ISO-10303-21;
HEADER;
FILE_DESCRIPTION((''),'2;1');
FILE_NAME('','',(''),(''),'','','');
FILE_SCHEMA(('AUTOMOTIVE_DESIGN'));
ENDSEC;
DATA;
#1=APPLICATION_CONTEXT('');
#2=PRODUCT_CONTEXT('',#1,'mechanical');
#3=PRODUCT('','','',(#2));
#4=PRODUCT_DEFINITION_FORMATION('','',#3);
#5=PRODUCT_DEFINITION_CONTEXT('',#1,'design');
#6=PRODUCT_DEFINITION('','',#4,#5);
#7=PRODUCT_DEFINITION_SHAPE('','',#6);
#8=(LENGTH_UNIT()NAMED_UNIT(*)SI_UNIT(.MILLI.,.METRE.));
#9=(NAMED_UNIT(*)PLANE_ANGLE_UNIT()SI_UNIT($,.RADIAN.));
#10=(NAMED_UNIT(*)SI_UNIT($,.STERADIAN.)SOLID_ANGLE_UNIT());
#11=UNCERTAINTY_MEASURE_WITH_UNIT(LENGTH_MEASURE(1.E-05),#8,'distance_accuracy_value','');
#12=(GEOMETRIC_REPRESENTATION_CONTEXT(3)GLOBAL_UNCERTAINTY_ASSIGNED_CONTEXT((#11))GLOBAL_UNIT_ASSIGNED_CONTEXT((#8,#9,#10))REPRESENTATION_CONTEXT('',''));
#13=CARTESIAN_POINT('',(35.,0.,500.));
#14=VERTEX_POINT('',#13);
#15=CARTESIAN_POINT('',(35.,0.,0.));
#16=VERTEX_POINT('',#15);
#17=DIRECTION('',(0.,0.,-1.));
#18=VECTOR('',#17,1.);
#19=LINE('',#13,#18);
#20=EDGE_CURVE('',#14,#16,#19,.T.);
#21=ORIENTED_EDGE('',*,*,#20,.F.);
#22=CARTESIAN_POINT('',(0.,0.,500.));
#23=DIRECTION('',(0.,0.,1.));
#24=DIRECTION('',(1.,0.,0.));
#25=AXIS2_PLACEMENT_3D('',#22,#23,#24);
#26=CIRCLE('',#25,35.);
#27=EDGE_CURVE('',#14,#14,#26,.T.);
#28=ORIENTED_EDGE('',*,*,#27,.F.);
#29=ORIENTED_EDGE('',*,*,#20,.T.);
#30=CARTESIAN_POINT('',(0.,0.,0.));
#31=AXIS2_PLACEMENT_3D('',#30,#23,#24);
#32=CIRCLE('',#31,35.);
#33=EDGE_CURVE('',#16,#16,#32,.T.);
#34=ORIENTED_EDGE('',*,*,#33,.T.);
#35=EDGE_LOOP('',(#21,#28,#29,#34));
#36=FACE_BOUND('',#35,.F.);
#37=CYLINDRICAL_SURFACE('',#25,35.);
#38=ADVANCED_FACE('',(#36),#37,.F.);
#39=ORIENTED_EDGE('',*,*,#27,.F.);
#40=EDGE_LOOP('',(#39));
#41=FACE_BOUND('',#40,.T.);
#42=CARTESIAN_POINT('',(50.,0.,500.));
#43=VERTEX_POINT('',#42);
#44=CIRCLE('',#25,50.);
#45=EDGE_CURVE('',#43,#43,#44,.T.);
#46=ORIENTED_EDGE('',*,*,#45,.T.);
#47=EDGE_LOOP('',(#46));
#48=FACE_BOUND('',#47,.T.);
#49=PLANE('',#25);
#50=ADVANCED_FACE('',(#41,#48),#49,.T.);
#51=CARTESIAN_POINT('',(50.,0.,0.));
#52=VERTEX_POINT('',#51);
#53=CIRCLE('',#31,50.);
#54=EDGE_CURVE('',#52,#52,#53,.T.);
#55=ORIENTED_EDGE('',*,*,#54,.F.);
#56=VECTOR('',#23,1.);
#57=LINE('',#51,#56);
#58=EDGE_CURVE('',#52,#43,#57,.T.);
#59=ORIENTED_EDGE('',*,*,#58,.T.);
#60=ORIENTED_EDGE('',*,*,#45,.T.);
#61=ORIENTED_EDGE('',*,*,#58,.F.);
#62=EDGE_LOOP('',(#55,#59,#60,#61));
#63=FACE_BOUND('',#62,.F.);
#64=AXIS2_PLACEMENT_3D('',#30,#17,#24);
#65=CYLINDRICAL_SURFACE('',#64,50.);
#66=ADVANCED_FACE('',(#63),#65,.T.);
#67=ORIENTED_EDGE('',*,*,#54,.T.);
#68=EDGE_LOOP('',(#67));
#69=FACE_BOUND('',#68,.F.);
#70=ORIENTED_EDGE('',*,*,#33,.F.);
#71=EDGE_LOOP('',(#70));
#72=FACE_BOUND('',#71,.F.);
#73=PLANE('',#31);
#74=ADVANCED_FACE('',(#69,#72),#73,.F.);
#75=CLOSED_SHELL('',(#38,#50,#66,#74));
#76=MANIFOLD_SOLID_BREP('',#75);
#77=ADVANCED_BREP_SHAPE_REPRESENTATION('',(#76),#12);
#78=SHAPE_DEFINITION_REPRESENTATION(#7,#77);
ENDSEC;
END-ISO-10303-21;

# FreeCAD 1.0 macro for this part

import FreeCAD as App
import Part
import Sketcher
from FreeCAD import Vector

doc = App.newDocument("Part")
body = doc.addObject("PartDesign::Body", "Body")

# Sketch on XY plane
sketch1 = body.newObject("Sketcher::SketchObject", "Sketch")
sketch1.AttachmentSupport = (doc.getObject("XY_Plane"), [""])
sketch1.MapMode = "FlatFace"
sketch1.addGeometry(Part.Circle(Vector(0, 0, 0), Vector(0, 0, 1), 50), False)
sketch1.addConstraint(Sketcher.Constraint("Coincident", 0, 3, -1, 1))
sketch1.addConstraint(Sketcher.Constraint("Diameter", 0, 100.0))
pad1 = body.newObject("PartDesign::Pad", "Pad")
pad1.Profile = sketch1
pad1.Length = 500

# Sketch on XY plane
sketch2 = body.newObject("Sketcher::SketchObject", "Sketch001")
sketch2.AttachmentSupport = (doc.getObject("XY_Plane"), [""])
sketch2.MapMode = "FlatFace"
sketch2.AttachmentOffset = App.Placement(Vector(0, 0, 500), App.Rotation())
sketch2.addGeometry(Part.Circle(Vector(0, 0, 0), Vector(0, 0, 1), 35), False)
sketch2.addConstraint(Sketcher.Constraint("Coincident", 0, 3, -1, 1))
sketch2.addConstraint(Sketcher.Constraint("Diameter", 0, 70.0))
pocket1 = body.newObject("PartDesign::Pocket", "Pocket")
pocket1.Profile = sketch2
pocket1.Length = 500

doc.recompute()
